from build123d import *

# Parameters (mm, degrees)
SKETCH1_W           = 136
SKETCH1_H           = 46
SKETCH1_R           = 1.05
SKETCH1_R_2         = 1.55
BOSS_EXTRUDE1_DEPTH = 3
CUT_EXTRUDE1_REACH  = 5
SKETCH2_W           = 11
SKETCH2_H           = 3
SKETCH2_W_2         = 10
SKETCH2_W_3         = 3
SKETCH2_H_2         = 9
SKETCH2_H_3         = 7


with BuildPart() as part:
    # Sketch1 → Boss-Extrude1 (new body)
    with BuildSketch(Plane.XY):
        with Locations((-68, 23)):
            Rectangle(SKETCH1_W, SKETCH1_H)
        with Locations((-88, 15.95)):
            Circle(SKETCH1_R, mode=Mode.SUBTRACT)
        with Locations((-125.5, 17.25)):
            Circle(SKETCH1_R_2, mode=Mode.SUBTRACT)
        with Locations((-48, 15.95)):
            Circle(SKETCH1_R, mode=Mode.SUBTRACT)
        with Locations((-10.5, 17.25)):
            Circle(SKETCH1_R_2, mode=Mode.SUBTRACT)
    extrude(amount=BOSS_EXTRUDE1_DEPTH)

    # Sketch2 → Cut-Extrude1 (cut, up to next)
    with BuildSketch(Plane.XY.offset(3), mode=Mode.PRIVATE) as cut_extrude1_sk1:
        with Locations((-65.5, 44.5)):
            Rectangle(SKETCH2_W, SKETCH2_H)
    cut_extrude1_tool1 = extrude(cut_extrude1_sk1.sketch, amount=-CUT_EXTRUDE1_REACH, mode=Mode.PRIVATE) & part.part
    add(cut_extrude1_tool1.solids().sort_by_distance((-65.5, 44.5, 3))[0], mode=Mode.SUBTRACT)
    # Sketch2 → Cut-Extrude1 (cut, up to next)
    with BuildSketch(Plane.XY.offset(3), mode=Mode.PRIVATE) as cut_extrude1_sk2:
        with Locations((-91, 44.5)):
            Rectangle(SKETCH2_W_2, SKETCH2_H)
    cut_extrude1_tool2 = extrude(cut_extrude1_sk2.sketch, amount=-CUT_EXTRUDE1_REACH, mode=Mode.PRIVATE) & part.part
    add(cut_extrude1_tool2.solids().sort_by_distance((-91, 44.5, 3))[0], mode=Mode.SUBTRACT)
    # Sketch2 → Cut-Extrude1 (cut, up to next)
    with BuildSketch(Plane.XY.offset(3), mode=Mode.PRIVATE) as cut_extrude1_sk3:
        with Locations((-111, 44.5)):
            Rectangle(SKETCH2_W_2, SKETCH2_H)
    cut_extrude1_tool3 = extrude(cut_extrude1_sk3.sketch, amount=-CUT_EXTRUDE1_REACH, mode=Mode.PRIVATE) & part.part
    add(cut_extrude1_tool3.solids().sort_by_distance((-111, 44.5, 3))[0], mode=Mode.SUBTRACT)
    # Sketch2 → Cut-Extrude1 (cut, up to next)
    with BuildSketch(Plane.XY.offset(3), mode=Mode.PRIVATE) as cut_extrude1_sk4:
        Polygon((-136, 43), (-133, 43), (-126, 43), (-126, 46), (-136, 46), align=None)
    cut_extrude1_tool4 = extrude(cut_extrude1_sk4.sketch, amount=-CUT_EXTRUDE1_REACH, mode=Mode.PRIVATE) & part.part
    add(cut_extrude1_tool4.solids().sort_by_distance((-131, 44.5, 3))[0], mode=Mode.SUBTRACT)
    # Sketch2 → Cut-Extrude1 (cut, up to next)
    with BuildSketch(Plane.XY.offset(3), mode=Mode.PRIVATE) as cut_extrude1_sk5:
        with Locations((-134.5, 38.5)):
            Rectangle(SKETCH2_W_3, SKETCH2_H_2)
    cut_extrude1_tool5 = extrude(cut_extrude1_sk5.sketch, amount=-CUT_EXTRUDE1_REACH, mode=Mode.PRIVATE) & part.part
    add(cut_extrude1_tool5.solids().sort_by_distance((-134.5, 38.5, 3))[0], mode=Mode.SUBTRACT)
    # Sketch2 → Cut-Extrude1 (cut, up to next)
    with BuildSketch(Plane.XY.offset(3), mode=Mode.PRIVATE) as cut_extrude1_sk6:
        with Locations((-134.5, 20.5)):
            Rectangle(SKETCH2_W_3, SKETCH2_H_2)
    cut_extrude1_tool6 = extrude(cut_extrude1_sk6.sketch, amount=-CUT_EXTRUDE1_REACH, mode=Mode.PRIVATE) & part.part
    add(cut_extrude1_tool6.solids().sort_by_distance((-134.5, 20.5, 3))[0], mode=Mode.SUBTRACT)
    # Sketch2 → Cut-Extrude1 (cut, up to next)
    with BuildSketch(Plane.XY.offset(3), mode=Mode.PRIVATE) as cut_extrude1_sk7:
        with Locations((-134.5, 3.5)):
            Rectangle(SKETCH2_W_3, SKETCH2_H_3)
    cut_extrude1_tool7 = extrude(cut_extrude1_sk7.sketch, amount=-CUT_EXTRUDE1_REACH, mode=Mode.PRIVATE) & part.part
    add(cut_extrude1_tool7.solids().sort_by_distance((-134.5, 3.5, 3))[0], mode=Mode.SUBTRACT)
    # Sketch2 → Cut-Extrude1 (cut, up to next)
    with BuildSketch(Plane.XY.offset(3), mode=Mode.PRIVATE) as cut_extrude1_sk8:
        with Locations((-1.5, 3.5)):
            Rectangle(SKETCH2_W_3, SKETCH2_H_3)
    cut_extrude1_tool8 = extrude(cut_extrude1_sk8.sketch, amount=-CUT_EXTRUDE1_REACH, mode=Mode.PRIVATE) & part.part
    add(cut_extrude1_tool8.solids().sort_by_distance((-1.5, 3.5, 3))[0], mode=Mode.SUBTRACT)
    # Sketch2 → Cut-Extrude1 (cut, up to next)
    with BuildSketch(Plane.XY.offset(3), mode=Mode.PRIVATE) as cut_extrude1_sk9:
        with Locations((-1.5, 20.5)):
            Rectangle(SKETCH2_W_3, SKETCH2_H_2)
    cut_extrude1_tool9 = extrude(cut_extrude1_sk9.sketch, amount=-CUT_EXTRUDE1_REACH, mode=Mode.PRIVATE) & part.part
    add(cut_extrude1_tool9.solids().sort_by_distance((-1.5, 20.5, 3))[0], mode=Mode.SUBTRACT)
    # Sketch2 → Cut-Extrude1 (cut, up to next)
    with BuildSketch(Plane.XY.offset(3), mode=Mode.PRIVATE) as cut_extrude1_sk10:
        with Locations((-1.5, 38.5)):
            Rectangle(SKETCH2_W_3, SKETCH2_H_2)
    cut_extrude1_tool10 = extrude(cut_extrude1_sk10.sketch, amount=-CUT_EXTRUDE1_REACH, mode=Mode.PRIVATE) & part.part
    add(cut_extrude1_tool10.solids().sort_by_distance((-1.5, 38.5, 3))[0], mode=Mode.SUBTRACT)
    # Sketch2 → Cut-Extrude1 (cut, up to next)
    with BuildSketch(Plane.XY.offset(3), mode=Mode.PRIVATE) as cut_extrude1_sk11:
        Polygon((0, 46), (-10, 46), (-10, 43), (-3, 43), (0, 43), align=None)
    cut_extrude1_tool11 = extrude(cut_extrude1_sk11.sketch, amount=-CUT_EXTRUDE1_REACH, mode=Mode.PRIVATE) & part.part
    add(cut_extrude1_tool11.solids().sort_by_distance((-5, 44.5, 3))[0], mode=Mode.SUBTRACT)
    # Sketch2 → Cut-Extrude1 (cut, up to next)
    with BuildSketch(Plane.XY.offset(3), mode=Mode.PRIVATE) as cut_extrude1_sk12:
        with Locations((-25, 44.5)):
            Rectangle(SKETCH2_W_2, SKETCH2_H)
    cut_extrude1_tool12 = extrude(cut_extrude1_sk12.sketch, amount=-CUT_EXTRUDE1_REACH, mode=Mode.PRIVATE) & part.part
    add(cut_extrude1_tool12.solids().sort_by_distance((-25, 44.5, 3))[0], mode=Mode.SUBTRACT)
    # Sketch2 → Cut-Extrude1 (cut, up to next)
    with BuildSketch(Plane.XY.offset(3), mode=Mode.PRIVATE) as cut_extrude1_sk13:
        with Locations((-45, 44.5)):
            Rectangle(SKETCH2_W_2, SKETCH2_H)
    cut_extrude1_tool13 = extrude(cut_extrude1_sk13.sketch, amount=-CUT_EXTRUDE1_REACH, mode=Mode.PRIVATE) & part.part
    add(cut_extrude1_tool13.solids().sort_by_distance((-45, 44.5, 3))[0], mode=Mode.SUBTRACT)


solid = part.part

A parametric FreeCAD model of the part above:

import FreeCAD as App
import Part
import Sketcher


def add_polygon(sketch, points):
    """Adds a closed chain of lines whose ends are joined by coincident constraints."""
    first, n = sketch.GeometryCount, len(points)
    for a, b in zip(points, points[1:] + points[:1]):
        sketch.addGeometry(Part.LineSegment(App.Vector(*a, 0), App.Vector(*b, 0)), False)
    for i in range(n):
        sketch.addConstraint(Sketcher.Constraint("Coincident", first + i, 2, first + (i + 1) % n, 1))

doc = App.newDocument("Part")
body = doc.addObject("PartDesign::Body", "Body")

# Sketch on XY plane
sketch1 = body.newObject("Sketcher::SketchObject", "Sketch")
sketch1.AttachmentSupport = (doc.getObject("XY_Plane"), [""])
sketch1.MapMode = "FlatFace"
add_polygon(sketch1, [(-136, 46), (-136, 0), (0, 0), (0, 46)])  # lines 0-3
sketch1.addGeometry(Part.Circle(App.Vector(-88, 15.95, 0), App.Vector(0, 0, 1), 1.05), False)  # 4
sketch1.addGeometry(Part.Circle(App.Vector(-48, 15.95, 0), App.Vector(0, 0, 1), 1.05), False)  # 5
sketch1.addGeometry(Part.Circle(App.Vector(-125.5, 17.25, 0), App.Vector(0, 0, 1), 1.55), False)  # 6
sketch1.addGeometry(Part.Circle(App.Vector(-10.5, 17.25, 0), App.Vector(0, 0, 1), 1.55), False)  # 7
sketch1.addConstraint([
    Sketcher.Constraint("Vertical", 0),
    Sketcher.Constraint("Horizontal", 1),
    Sketcher.Constraint("Vertical", 2),
    Sketcher.Constraint("Horizontal", 3),
    Sketcher.Constraint("Coincident", 1, 2, -1, 1),
    Sketcher.Constraint("Equal", 4, 5),
    Sketcher.Constraint("Equal", 6, 7),
    Sketcher.Constraint("Horizontal", 4, 3, 5, 3),
    Sketcher.Constraint("Horizontal", 6, 3, 7, 3),
    Sketcher.Constraint("Diameter", 4, 2.1),
    Sketcher.Constraint("Diameter", 6, 3.1),
    Sketcher.Constraint("DistanceX", 1, 1, 1, 2, 136.0),
    Sketcher.Constraint("DistanceY", 0, 2, 0, 1, 46.0),
    Sketcher.Constraint("DistanceX", 4, 3, -1, 1, 88.0),
    Sketcher.Constraint("DistanceX", 5, 3, -1, 1, 48.0),
    Sketcher.Constraint("DistanceX", 6, 3, 7, 3, 115.0),
    Sketcher.Constraint("DistanceX", 6, 3, -1, 1, 125.5),
    Sketcher.Constraint("DistanceY", 4, 3, 6, 3, 1.3),
    Sketcher.Constraint("DistanceY", -1, 1, 4, 3, 15.95),
])
pad1 = body.newObject("PartDesign::Pad", "Pad")
pad1.Profile = sketch1
pad1.Length = 3

# Sketch on XY plane
sketch2 = body.newObject("Sketcher::SketchObject", "Sketch001")
sketch2.AttachmentSupport = (doc.getObject("XY_Plane"), [""])
sketch2.MapMode = "FlatFace"
sketch2.AttachmentOffset = App.Placement(App.Vector(0, 0, 3), App.Rotation())
add_polygon(sketch2, [(-71, 46), (-71, 43), (-60, 43), (-60, 46)])  # lines 0-3
sketch2.addConstraint([
    Sketcher.Constraint("Vertical", 0),
    Sketcher.Constraint("Horizontal", 1),
    Sketcher.Constraint("Vertical", 2),
    Sketcher.Constraint("Horizontal", 3),
    Sketcher.Constraint("DistanceX", 1, 1, 1, 2, 11.0),
    Sketcher.Constraint("DistanceY", 0, 2, 0, 1, 3.0),
    Sketcher.Constraint("DistanceX", 0, 2, -1, 1, 71.0),
    Sketcher.Constraint("DistanceY", -1, 1, 0, 2, 43.0),
])
pocket1 = body.newObject("PartDesign::Pocket", "Pocket")
pocket1.Profile = sketch2
pocket1.Type = "UpToFirst"

# Sketch on XY plane
sketch3 = body.newObject("Sketcher::SketchObject", "Sketch002")
sketch3.AttachmentSupport = (doc.getObject("XY_Plane"), [""])
sketch3.MapMode = "FlatFace"
sketch3.AttachmentOffset = App.Placement(App.Vector(0, 0, 3), App.Rotation())
add_polygon(sketch3, [(-96, 46), (-96, 43), (-86, 43), (-86, 46)])  # lines 0-3
sketch3.addConstraint([
    Sketcher.Constraint("Vertical", 0),
    Sketcher.Constraint("Horizontal", 1),
    Sketcher.Constraint("Vertical", 2),
    Sketcher.Constraint("Horizontal", 3),
    Sketcher.Constraint("DistanceX", 1, 1, 1, 2, 10.0),
    Sketcher.Constraint("DistanceY", 0, 2, 0, 1, 3.0),
    Sketcher.Constraint("DistanceX", 0, 2, -1, 1, 96.0),
    Sketcher.Constraint("DistanceY", -1, 1, 0, 2, 43.0),
])
pocket2 = body.newObject("PartDesign::Pocket", "Pocket001")
pocket2.Profile = sketch3
pocket2.Type = "UpToFirst"

# Sketch on XY plane
sketch4 = body.newObject("Sketcher::SketchObject", "Sketch003")
sketch4.AttachmentSupport = (doc.getObject("XY_Plane"), [""])
sketch4.MapMode = "FlatFace"
sketch4.AttachmentOffset = App.Placement(App.Vector(0, 0, 3), App.Rotation())
add_polygon(sketch4, [(-116, 46), (-116, 43), (-106, 43), (-106, 46)])  # lines 0-3
sketch4.addConstraint([
    Sketcher.Constraint("Vertical", 0),
    Sketcher.Constraint("Horizontal", 1),
    Sketcher.Constraint("Vertical", 2),
    Sketcher.Constraint("Horizontal", 3),
    Sketcher.Constraint("DistanceX", 1, 1, 1, 2, 10.0),
    Sketcher.Constraint("DistanceY", 0, 2, 0, 1, 3.0),
    Sketcher.Constraint("DistanceX", 0, 2, -1, 1, 116.0),
    Sketcher.Constraint("DistanceY", -1, 1, 0, 2, 43.0),
])
pocket3 = body.newObject("PartDesign::Pocket", "Pocket002")
pocket3.Profile = sketch4
pocket3.Type = "UpToFirst"

# Sketch on XY plane
sketch5 = body.newObject("Sketcher::SketchObject", "Sketch004")
sketch5.AttachmentSupport = (doc.getObject("XY_Plane"), [""])
sketch5.MapMode = "FlatFace"
sketch5.AttachmentOffset = App.Placement(App.Vector(0, 0, 3), App.Rotation())
add_polygon(sketch5, [(-136, 43), (-126, 43), (-126, 46), (-136, 46)])  # lines 0-3
sketch5.addConstraint([
    Sketcher.Constraint("Horizontal", 0),
    Sketcher.Constraint("Vertical", 1),
    Sketcher.Constraint("Horizontal", 2),
    Sketcher.Constraint("Vertical", 3),
    Sketcher.Constraint("DistanceX", 0, 1, 0, 2, 10.0),
    Sketcher.Constraint("DistanceY", 1, 1, 1, 2, 3.0),
    Sketcher.Constraint("DistanceX", 0, 2, -1, 1, 126.0),
    Sketcher.Constraint("DistanceY", -1, 1, 0, 2, 43.0),
])
pocket4 = body.newObject("PartDesign::Pocket", "Pocket003")
pocket4.Profile = sketch5
pocket4.Type = "UpToFirst"

# Sketch on XY plane
sketch6 = body.newObject("Sketcher::SketchObject", "Sketch005")
sketch6.AttachmentSupport = (doc.getObject("XY_Plane"), [""])
sketch6.MapMode = "FlatFace"
sketch6.AttachmentOffset = App.Placement(App.Vector(0, 0, 3), App.Rotation())
add_polygon(sketch6, [(-136, 43), (-136, 34), (-133, 34), (-133, 43)])  # lines 0-3
sketch6.addConstraint([
    Sketcher.Constraint("Vertical", 0),
    Sketcher.Constraint("Horizontal", 1),
    Sketcher.Constraint("Vertical", 2),
    Sketcher.Constraint("Horizontal", 3),
    Sketcher.Constraint("DistanceX", 1, 1, 1, 2, 3.0),
    Sketcher.Constraint("DistanceY", 0, 2, 0, 1, 9.0),
    Sketcher.Constraint("DistanceX", 0, 2, -1, 1, 136.0),
    Sketcher.Constraint("DistanceY", -1, 1, 0, 2, 34.0),
])
pocket5 = body.newObject("PartDesign::Pocket", "Pocket004")
pocket5.Profile = sketch6
pocket5.Type = "UpToFirst"

# Sketch on XY plane
sketch7 = body.newObject("Sketcher::SketchObject", "Sketch006")
sketch7.AttachmentSupport = (doc.getObject("XY_Plane"), [""])
sketch7.MapMode = "FlatFace"
sketch7.AttachmentOffset = App.Placement(App.Vector(0, 0, 3), App.Rotation())
add_polygon(sketch7, [(-136, 25), (-136, 16), (-133, 16), (-133, 25)])  # lines 0-3
sketch7.addConstraint([
    Sketcher.Constraint("Vertical", 0),
    Sketcher.Constraint("Horizontal", 1),
    Sketcher.Constraint("Vertical", 2),
    Sketcher.Constraint("Horizontal", 3),
    Sketcher.Constraint("DistanceX", 1, 1, 1, 2, 3.0),
    Sketcher.Constraint("DistanceY", 0, 2, 0, 1, 9.0),
    Sketcher.Constraint("DistanceX", 0, 2, -1, 1, 136.0),
    Sketcher.Constraint("DistanceY", -1, 1, 0, 2, 16.0),
])
pocket6 = body.newObject("PartDesign::Pocket", "Pocket005")
pocket6.Profile = sketch7
pocket6.Type = "UpToFirst"

# Sketch on XY plane
sketch8 = body.newObject("Sketcher::SketchObject", "Sketch007")
sketch8.AttachmentSupport = (doc.getObject("XY_Plane"), [""])
sketch8.MapMode = "FlatFace"
sketch8.AttachmentOffset = App.Placement(App.Vector(0, 0, 3), App.Rotation())
add_polygon(sketch8, [(-136, 7), (-136, 0), (-133, 0), (-133, 7)])  # lines 0-3
sketch8.addConstraint([
    Sketcher.Constraint("Vertical", 0),
    Sketcher.Constraint("Horizontal", 1),
    Sketcher.Constraint("Vertical", 2),
    Sketcher.Constraint("Horizontal", 3),
    Sketcher.Constraint("PointOnObject", 0, 2, -1),
    Sketcher.Constraint("DistanceX", 1, 1, 1, 2, 3.0),
    Sketcher.Constraint("DistanceY", 0, 2, 0, 1, 7.0),
    Sketcher.Constraint("DistanceX", 0, 2, -1, 1, 136.0),
])
pocket7 = body.newObject("PartDesign::Pocket", "Pocket006")
pocket7.Profile = sketch8
pocket7.Type = "UpToFirst"

# Sketch on XY plane
sketch9 = body.newObject("Sketcher::SketchObject", "Sketch008")
sketch9.AttachmentSupport = (doc.getObject("XY_Plane"), [""])
sketch9.MapMode = "FlatFace"
sketch9.AttachmentOffset = App.Placement(App.Vector(0, 0, 3), App.Rotation())
add_polygon(sketch9, [(-3, 7), (-3, 0), (0, 0), (0, 7)])  # lines 0-3
sketch9.addConstraint([
    Sketcher.Constraint("Vertical", 0),
    Sketcher.Constraint("Horizontal", 1),
    Sketcher.Constraint("Vertical", 2),
    Sketcher.Constraint("Horizontal", 3),
    Sketcher.Constraint("Coincident", 1, 2, -1, 1),
    Sketcher.Constraint("DistanceX", 1, 1, 1, 2, 3.0),
    Sketcher.Constraint("DistanceY", 0, 2, 0, 1, 7.0),
])
pocket8 = body.newObject("PartDesign::Pocket", "Pocket007")
pocket8.Profile = sketch9
pocket8.Type = "UpToFirst"

# Sketch on XY plane
sketch10 = body.newObject("Sketcher::SketchObject", "Sketch009")
sketch10.AttachmentSupport = (doc.getObject("XY_Plane"), [""])
sketch10.MapMode = "FlatFace"
sketch10.AttachmentOffset = App.Placement(App.Vector(0, 0, 3), App.Rotation())
add_polygon(sketch10, [(-3, 25), (-3, 16), (0, 16), (0, 25)])  # lines 0-3
sketch10.addConstraint([
    Sketcher.Constraint("Vertical", 0),
    Sketcher.Constraint("Horizontal", 1),
    Sketcher.Constraint("Vertical", 2),
    Sketcher.Constraint("Horizontal", 3),
    Sketcher.Constraint("PointOnObject", 1, 2, -2),
    Sketcher.Constraint("DistanceX", 1, 1, 1, 2, 3.0),
    Sketcher.Constraint("DistanceY", 0, 2, 0, 1, 9.0),
    Sketcher.Constraint("DistanceY", -1, 1, 0, 2, 16.0),
])
pocket9 = body.newObject("PartDesign::Pocket", "Pocket008")
pocket9.Profile = sketch10
pocket9.Type = "UpToFirst"

# Sketch on XY plane
sketch11 = body.newObject("Sketcher::SketchObject", "Sketch010")
sketch11.AttachmentSupport = (doc.getObject("XY_Plane"), [""])
sketch11.MapMode = "FlatFace"
sketch11.AttachmentOffset = App.Placement(App.Vector(0, 0, 3), App.Rotation())
add_polygon(sketch11, [(-3, 43), (-3, 34), (0, 34), (0, 43)])  # lines 0-3
sketch11.addConstraint([
    Sketcher.Constraint("Vertical", 0),
    Sketcher.Constraint("Horizontal", 1),
    Sketcher.Constraint("Vertical", 2),
    Sketcher.Constraint("Horizontal", 3),
    Sketcher.Constraint("PointOnObject", 1, 2, -2),
    Sketcher.Constraint("DistanceX", 1, 1, 1, 2, 3.0),
    Sketcher.Constraint("DistanceY", 0, 2, 0, 1, 9.0),
    Sketcher.Constraint("DistanceY", -1, 1, 0, 2, 34.0),
])
pocket10 = body.newObject("PartDesign::Pocket", "Pocket009")
pocket10.Profile = sketch11
pocket10.Type = "UpToFirst"

# Sketch on XY plane
sketch12 = body.newObject("Sketcher::SketchObject", "Sketch011")
sketch12.AttachmentSupport = (doc.getObject("XY_Plane"), [""])
sketch12.MapMode = "FlatFace"
sketch12.AttachmentOffset = App.Placement(App.Vector(0, 0, 3), App.Rotation())
add_polygon(sketch12, [(0, 46), (-10, 46), (-10, 43), (0, 43)])  # lines 0-3
sketch12.addConstraint([
    Sketcher.Constraint("Horizontal", 0),
    Sketcher.Constraint("Vertical", 1),
    Sketcher.Constraint("Horizontal", 2),
    Sketcher.Constraint("Vertical", 3),
    Sketcher.Constraint("PointOnObject", 2, 2, -2),
    Sketcher.Constraint("DistanceX", 0, 2, 0, 1, 10.0),
    Sketcher.Constraint("DistanceY", 1, 2, 1, 1, 3.0),
    Sketcher.Constraint("DistanceY", -1, 1, 0, 2, 46.0),
])
pocket11 = body.newObject("PartDesign::Pocket", "Pocket010")
pocket11.Profile = sketch12
pocket11.Type = "UpToFirst"

# Sketch on XY plane
sketch13 = body.newObject("Sketcher::SketchObject", "Sketch012")
sketch13.AttachmentSupport = (doc.getObject("XY_Plane"), [""])
sketch13.MapMode = "FlatFace"
sketch13.AttachmentOffset = App.Placement(App.Vector(0, 0, 3), App.Rotation())
add_polygon(sketch13, [(-30, 46), (-30, 43), (-20, 43), (-20, 46)])  # lines 0-3
sketch13.addConstraint([
    Sketcher.Constraint("Vertical", 0),
    Sketcher.Constraint("Horizontal", 1),
    Sketcher.Constraint("Vertical", 2),
    Sketcher.Constraint("Horizontal", 3),
    Sketcher.Constraint("DistanceX", 1, 1, 1, 2, 10.0),
    Sketcher.Constraint("DistanceY", 0, 2, 0, 1, 3.0),
    Sketcher.Constraint("DistanceX", 0, 2, -1, 1, 30.0),
    Sketcher.Constraint("DistanceY", -1, 1, 0, 2, 43.0),
])
pocket12 = body.newObject("PartDesign::Pocket", "Pocket011")
pocket12.Profile = sketch13
pocket12.Type = "UpToFirst"

# Sketch on XY plane
sketch14 = body.newObject("Sketcher::SketchObject", "Sketch013")
sketch14.AttachmentSupport = (doc.getObject("XY_Plane"), [""])
sketch14.MapMode = "FlatFace"
sketch14.AttachmentOffset = App.Placement(App.Vector(0, 0, 3), App.Rotation())
add_polygon(sketch14, [(-50, 46), (-50, 43), (-40, 43), (-40, 46)])  # lines 0-3
sketch14.addConstraint([
    Sketcher.Constraint("Vertical", 0),
    Sketcher.Constraint("Horizontal", 1),
    Sketcher.Constraint("Vertical", 2),
    Sketcher.Constraint("Horizontal", 3),
    Sketcher.Constraint("DistanceX", 1, 1, 1, 2, 10.0),
    Sketcher.Constraint("DistanceY", 0, 2, 0, 1, 3.0),
    Sketcher.Constraint("DistanceX", 0, 2, -1, 1, 50.0),
    Sketcher.Constraint("DistanceY", -1, 1, 0, 2, 43.0),
])
pocket13 = body.newObject("PartDesign::Pocket", "Pocket012")
pocket13.Profile = sketch14
pocket13.Type = "UpToFirst"

doc.recompute()
